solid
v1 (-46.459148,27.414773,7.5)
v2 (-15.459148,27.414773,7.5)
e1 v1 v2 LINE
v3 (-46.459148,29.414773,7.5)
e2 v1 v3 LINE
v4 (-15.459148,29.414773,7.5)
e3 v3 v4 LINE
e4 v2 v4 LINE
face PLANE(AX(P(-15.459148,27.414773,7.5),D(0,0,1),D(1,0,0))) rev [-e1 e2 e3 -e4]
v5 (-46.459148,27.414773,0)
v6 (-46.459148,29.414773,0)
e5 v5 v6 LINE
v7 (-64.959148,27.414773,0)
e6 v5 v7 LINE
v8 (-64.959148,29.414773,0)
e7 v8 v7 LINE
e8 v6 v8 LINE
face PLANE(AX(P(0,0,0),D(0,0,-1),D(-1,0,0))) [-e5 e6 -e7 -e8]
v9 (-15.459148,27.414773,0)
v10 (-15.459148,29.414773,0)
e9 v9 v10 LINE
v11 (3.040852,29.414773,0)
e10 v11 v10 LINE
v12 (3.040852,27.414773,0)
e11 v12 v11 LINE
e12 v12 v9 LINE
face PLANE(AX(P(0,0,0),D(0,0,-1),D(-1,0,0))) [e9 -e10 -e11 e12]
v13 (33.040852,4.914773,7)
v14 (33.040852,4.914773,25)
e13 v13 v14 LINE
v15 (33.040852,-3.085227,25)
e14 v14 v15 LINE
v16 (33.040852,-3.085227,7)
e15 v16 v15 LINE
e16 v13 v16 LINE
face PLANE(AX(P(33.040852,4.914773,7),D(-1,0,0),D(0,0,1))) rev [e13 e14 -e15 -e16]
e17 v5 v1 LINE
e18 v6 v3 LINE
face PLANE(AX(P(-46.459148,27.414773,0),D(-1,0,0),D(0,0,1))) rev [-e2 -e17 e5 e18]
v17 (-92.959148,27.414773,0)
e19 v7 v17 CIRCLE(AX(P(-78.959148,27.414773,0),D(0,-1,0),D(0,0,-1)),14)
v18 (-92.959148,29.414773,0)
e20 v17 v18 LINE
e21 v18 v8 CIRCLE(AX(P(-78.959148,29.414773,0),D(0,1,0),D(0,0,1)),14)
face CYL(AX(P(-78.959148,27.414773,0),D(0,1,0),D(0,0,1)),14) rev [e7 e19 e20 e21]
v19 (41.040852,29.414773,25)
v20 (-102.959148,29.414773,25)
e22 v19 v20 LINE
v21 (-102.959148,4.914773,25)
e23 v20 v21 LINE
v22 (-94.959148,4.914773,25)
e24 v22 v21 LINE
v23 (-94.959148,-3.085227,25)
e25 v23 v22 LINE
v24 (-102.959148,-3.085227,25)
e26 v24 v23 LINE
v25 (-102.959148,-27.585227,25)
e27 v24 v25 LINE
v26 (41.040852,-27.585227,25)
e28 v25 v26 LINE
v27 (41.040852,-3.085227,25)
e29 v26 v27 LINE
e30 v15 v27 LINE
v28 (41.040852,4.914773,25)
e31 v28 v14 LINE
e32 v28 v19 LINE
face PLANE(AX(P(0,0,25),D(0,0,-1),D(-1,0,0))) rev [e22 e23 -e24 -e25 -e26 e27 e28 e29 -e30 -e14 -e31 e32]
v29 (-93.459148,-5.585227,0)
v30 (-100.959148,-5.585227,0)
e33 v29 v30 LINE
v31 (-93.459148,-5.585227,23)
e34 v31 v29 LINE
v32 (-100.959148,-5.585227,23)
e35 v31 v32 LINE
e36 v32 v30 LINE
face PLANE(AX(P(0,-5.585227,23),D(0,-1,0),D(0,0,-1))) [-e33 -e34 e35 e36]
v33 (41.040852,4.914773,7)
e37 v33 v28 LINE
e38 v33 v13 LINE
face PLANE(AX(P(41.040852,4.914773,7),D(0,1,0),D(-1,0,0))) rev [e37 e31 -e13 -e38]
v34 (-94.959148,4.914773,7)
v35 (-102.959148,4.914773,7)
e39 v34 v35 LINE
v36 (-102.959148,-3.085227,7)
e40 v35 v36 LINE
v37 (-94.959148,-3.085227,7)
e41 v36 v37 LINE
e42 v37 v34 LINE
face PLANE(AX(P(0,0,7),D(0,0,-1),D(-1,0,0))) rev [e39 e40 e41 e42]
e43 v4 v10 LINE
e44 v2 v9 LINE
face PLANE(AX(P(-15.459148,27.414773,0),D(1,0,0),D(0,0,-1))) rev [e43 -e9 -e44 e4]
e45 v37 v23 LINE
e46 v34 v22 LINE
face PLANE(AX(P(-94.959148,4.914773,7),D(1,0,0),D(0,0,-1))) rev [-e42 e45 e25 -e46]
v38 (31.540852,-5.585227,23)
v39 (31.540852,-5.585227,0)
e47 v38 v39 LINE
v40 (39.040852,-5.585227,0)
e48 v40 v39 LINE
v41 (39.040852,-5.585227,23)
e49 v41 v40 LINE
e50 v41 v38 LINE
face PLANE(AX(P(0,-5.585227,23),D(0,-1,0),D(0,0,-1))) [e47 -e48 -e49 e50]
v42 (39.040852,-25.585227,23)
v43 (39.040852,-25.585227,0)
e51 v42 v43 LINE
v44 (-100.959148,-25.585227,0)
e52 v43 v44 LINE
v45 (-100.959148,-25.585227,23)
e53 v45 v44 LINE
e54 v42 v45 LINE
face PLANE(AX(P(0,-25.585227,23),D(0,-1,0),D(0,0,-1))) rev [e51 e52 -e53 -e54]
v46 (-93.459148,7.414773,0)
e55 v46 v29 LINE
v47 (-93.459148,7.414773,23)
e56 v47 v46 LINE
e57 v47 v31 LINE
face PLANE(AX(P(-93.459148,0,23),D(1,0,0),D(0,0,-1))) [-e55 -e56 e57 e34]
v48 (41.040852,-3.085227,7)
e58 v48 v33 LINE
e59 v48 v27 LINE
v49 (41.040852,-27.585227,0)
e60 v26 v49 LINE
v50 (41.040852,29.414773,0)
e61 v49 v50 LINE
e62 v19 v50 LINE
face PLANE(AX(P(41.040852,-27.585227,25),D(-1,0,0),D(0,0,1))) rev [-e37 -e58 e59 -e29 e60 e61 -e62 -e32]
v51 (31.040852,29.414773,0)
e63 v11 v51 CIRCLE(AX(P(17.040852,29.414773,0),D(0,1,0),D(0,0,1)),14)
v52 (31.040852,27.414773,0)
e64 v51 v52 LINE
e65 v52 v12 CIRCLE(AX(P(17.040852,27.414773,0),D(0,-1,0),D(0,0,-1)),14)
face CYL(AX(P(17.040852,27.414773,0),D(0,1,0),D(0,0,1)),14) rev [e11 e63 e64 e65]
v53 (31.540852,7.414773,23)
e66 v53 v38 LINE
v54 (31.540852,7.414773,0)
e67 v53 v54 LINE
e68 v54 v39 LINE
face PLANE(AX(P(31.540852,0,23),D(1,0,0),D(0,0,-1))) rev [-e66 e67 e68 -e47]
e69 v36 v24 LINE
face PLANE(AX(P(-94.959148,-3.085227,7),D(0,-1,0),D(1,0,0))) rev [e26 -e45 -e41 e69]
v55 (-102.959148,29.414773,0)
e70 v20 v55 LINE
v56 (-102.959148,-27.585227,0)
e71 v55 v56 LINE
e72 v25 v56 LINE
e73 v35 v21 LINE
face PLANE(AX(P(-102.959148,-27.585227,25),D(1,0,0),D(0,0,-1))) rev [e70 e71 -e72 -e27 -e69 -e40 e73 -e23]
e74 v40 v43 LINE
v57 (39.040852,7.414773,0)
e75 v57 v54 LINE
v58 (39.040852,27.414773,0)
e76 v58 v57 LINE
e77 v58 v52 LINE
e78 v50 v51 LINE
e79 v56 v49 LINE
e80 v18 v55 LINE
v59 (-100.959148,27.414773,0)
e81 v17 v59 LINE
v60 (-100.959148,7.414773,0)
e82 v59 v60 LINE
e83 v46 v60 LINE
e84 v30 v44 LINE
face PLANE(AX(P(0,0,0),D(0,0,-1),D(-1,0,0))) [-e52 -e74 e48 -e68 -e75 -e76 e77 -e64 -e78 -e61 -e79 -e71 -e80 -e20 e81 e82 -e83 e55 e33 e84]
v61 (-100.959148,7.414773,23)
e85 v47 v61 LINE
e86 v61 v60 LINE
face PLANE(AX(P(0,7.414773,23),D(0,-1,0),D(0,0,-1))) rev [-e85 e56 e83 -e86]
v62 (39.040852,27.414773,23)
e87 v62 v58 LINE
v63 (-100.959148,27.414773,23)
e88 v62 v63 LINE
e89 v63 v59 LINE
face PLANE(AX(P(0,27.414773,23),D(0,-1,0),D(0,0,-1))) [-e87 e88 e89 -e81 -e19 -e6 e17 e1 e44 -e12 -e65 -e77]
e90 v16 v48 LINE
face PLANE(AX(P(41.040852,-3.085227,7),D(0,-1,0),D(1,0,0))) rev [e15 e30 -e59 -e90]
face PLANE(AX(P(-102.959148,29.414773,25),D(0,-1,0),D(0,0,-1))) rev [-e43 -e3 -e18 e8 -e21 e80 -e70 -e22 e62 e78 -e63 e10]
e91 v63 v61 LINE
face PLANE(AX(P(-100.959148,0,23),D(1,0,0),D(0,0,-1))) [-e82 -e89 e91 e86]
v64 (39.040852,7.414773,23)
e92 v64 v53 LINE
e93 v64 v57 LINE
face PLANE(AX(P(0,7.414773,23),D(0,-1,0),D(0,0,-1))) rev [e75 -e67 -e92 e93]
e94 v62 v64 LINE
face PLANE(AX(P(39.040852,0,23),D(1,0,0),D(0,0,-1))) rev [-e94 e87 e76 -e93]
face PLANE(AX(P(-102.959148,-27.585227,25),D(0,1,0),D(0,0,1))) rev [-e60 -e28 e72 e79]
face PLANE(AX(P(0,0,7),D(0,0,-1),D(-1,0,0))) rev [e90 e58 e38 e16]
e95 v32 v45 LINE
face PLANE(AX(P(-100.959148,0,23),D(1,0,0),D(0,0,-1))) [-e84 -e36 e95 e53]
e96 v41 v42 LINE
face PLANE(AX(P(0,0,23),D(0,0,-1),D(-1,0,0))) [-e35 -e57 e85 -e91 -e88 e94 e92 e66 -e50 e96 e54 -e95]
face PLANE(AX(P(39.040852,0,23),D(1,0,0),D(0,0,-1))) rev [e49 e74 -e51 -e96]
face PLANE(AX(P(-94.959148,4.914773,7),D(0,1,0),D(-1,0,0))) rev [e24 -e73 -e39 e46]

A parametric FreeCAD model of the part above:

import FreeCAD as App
import Part
import Sketcher
from FreeCAD import Vector
Q = App.Units.Quantity


def add_polygon(sketch, points):
    """Adds a closed chain of lines whose ends are joined by coincident constraints."""
    first, n = sketch.GeometryCount, len(points)
    for a, b in zip(points, points[1:] + points[:1]):
        sketch.addGeometry(Part.LineSegment(App.Vector(*a, 0), App.Vector(*b, 0)), False)
    for i in range(n):
        sketch.addConstraint(Sketcher.Constraint("Coincident", first + i, 2, first + (i + 1) % n, 1))

doc = App.newDocument("Part")
body = doc.addObject("PartDesign::Body", "Body")

sketch1 = doc.addObject("Sketcher::SketchObject", "Sketch")
body.addObject(sketch1)
sketch1.AttachmentSupport = (doc.XY_Plane, [""])
sketch1.MapMode = "FlatFace"
add_polygon(sketch1, [(-103, 29), (-103, -28), (41, -28), (41, 29)])
sketch1.addConstraint(Sketcher.Constraint("Vertical", 0))
sketch1.addConstraint(Sketcher.Constraint("Horizontal", 1))
sketch1.addConstraint(Sketcher.Constraint("Vertical", 2))
sketch1.addConstraint(Sketcher.Constraint("Horizontal", 3))
sketch1.addConstraint(Sketcher.Constraint("DistanceX", 1, 1, 1, 2, Q("144 mm")))
sketch1.addConstraint(Sketcher.Constraint("DistanceY", 0, 2, 0, 1, Q("57 mm")))
sketch1.addConstraint(Sketcher.Constraint("DistanceX", 0, 2, -1, 1, Q("102.959148 mm")))
sketch1.addConstraint(Sketcher.Constraint("DistanceY", 0, 2, -1, 1, Q("27.585227 mm")))
pad1 = doc.addObject("PartDesign::Pad", "Pad")
body.addObject(pad1)
pad1.Profile = sketch1
pad1.Length = 25

sketch2 = doc.addObject("Sketcher::SketchObject", "Sketch001")
body.addObject(sketch2)
sketch2.AttachmentSupport = (doc.XY_Plane, [""])
sketch2.MapMode = "FlatFace"
sketch2.AttachmentOffset = App.Placement(Vector(0, 0, 25), App.Rotation())
add_polygon(sketch2, [(33, 5), (33, -3), (41, -3), (41, 5)])
add_polygon(sketch2, [(-103, 5), (-103, -3), (-95, -3), (-95, 5)])
sketch2.addConstraint(Sketcher.Constraint("Vertical", 0))
sketch2.addConstraint(Sketcher.Constraint("Horizontal", 1))
sketch2.addConstraint(Sketcher.Constraint("Vertical", 2))
sketch2.addConstraint(Sketcher.Constraint("Horizontal", 3))
sketch2.addConstraint(Sketcher.Constraint("Vertical", 4))
sketch2.addConstraint(Sketcher.Constraint("Horizontal", 5))
sketch2.addConstraint(Sketcher.Constraint("Vertical", 6))
sketch2.addConstraint(Sketcher.Constraint("Horizontal", 7))
sketch2.addConstraint(Sketcher.Constraint("Horizontal", 1, 2, 4, 2))
sketch2.addConstraint(Sketcher.Constraint("Horizontal", 3, 2, 6, 2))
sketch2.addConstraint(Sketcher.Constraint("Equal", 3, 5))
sketch2.addConstraint(Sketcher.Constraint("Equal", 7, 0))
sketch2.addConstraint(Sketcher.Constraint("DistanceX", 1, 1, 1, 2, Q("8 mm")))
sketch2.addConstraint(Sketcher.Constraint("DistanceX", 4, 2, 0, 2, Q("136 mm")))
sketch2.addConstraint(Sketcher.Constraint("DistanceX", -1, 1, 0, 2, Q("33.040852 mm")))
sketch2.addConstraint(Sketcher.Constraint("DistanceY", 0, 2, -1, 1, Q("3.085227 mm")))
pocket1 = doc.addObject("PartDesign::Pocket", "Pocket")
body.addObject(pocket1)
pocket1.Profile = sketch2
pocket1.Length = 18

sketch3 = doc.addObject("Sketcher::SketchObject", "Sketch002")
body.addObject(sketch3)
sketch3.AttachmentSupport = (doc.XY_Plane, [""])
sketch3.MapMode = "FlatFace"
add_polygon(sketch3, [(39, 27), (39, 7), (32, 7), (32, -6), (39, -6), (39, -26), (-101, -26), (-101, -6), (-93, -6), (-93, 7), (-101, 7), (-101, 27)])
sketch3.addConstraint(Sketcher.Constraint("Vertical", 0))
sketch3.addConstraint(Sketcher.Constraint("Horizontal", 1))
sketch3.addConstraint(Sketcher.Constraint("Vertical", 2))
sketch3.addConstraint(Sketcher.Constraint("Horizontal", 3))
sketch3.addConstraint(Sketcher.Constraint("Vertical", 4))
sketch3.addConstraint(Sketcher.Constraint("Horizontal", 5))
sketch3.addConstraint(Sketcher.Constraint("Vertical", 6))
sketch3.addConstraint(Sketcher.Constraint("Horizontal", 7))
sketch3.addConstraint(Sketcher.Constraint("Vertical", 8))
sketch3.addConstraint(Sketcher.Constraint("Horizontal", 9))
sketch3.addConstraint(Sketcher.Constraint("Vertical", 10))
sketch3.addConstraint(Sketcher.Constraint("Horizontal", 11))
sketch3.addConstraint(Sketcher.Constraint("Horizontal", 3, 2, 6, 2))
sketch3.addConstraint(Sketcher.Constraint("Horizontal", 1, 2, 8, 2))
sketch3.addConstraint(Sketcher.Constraint("Vertical", 0, 2, 3, 2))
sketch3.addConstraint(Sketcher.Constraint("Vertical", 6, 2, 9, 2))
sketch3.addConstraint(Sketcher.Constraint("Equal", 3, 7))
sketch3.addConstraint(Sketcher.Constraint("Equal", 0, 4))
sketch3.addConstraint(Sketcher.Constraint("DistanceX", 5, 2, 5, 1, Q("140 mm")))
sketch3.addConstraint(Sketcher.Constraint("DistanceY", 0, 2, 0, 1, Q("20 mm")))
sketch3.addConstraint(Sketcher.Constraint("DistanceY", 2, 2, 2, 1, Q("13 mm")))
sketch3.addConstraint(Sketcher.Constraint("DistanceX", 1, 2, 1, 1, Q("7.5 mm")))
sketch3.addConstraint(Sketcher.Constraint("DistanceX", -1, 1, 0, 2, Q("39.040852 mm")))
sketch3.addConstraint(Sketcher.Constraint("DistanceY", -1, 1, 0, 2, Q("7.414773 mm")))
pocket2 = doc.addObject("PartDesign::Pocket", "Pocket001")
body.addObject(pocket2)
pocket2.Profile = sketch3
pocket2.Length = 23
pocket2.Reversed = True

sketch4 = doc.addObject("Sketcher::SketchObject", "Sketch003")
body.addObject(sketch4)
sketch4.AttachmentSupport = (doc.XZ_Plane, [""])
sketch4.MapMode = "FlatFace"
sketch4.AttachmentOffset = App.Placement(Vector(0, 0, -29.414773), App.Rotation())
sketch4.addGeometry(Part.Circle(Vector(17, 0, 0), Vector(0, 0, 1), 14), False)
sketch4.addGeometry(Part.Circle(Vector(-79, 0, 0), Vector(0, 0, 1), 14), False)
add_polygon(sketch4, [(-46, 0), (-46, 8), (-15, 8), (-15, 0)])
sketch4.addConstraint(Sketcher.Constraint("Vertical", 2))
sketch4.addConstraint(Sketcher.Constraint("Horizontal", 3))
sketch4.addConstraint(Sketcher.Constraint("Vertical", 4))
sketch4.addConstraint(Sketcher.Constraint("Horizontal", 5))
sketch4.addConstraint(Sketcher.Constraint("Equal", 0, 1))
sketch4.addConstraint(Sketcher.Constraint("PointOnObject", 0, 3, -1))
sketch4.addConstraint(Sketcher.Constraint("PointOnObject", 1, 3, -1))
sketch4.addConstraint(Sketcher.Constraint("PointOnObject", 4, 2, -1))
sketch4.addConstraint(Sketcher.Constraint("Diameter", 0, Q("28 mm")))
sketch4.addConstraint(Sketcher.Constraint("DistanceX", 3, 1, 3, 2, Q("31 mm")))
sketch4.addConstraint(Sketcher.Constraint("DistanceY", 2, 1, 2, 2, Q("7.5 mm")))
sketch4.addConstraint(Sketcher.Constraint("DistanceX", 1, 3, 0, 3, Q("96 mm")))
sketch4.addConstraint(Sketcher.Constraint("DistanceX", 1, 3, 2, 2, Q("32.5 mm")))
sketch4.addConstraint(Sketcher.Constraint("DistanceX", -1, 1, 0, 3, Q("17.040852 mm")))
pocket3 = doc.addObject("PartDesign::Pocket", "Pocket002")
body.addObject(pocket3)
pocket3.Profile = sketch4
pocket3.Length = 2
pocket3.Reversed = True

doc.recompute()
